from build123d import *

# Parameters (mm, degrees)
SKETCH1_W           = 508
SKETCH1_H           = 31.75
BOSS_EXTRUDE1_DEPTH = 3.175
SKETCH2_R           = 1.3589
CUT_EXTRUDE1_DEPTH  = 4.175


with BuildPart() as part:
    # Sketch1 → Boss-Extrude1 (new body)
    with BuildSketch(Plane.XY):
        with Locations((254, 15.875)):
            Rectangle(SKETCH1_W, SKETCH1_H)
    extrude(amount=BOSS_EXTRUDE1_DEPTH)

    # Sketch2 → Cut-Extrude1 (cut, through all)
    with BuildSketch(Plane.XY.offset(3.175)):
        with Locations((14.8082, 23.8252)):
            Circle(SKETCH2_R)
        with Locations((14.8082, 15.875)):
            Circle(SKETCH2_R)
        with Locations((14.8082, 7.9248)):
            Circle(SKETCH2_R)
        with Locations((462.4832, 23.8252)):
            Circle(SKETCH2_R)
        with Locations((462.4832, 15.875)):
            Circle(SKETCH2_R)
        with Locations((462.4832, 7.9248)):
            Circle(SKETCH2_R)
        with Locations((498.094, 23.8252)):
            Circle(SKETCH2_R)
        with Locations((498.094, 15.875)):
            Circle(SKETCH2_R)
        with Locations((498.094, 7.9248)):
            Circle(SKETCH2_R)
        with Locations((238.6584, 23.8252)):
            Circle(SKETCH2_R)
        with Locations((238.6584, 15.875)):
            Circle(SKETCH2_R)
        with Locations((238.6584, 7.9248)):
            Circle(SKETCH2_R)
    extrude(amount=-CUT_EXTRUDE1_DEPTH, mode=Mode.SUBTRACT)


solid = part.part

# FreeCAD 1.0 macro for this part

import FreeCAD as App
import Part
import Sketcher
Q = App.Units.Quantity

doc = App.newDocument("Part")
body = doc.addObject("PartDesign::Body", "Body")

# Sketch on XY plane
sketch1 = body.newObject("Sketcher::SketchObject", "Sketch")
sketch1.AttachmentSupport = (doc.getObject("XY_Plane"), [""])
sketch1.MapMode = "FlatFace"
sketch1.addGeometry(Part.LineSegment(App.Vector(0, 32, 0), App.Vector(0, 0, 0)), False)
sketch1.addGeometry(Part.LineSegment(App.Vector(0, 0, 0), App.Vector(508, 0, 0)), False)
sketch1.addGeometry(Part.LineSegment(App.Vector(508, 0, 0), App.Vector(508, 32, 0)), False)
sketch1.addGeometry(Part.LineSegment(App.Vector(508, 32, 0), App.Vector(0, 32, 0)), False)
sketch1.addConstraint(Sketcher.Constraint("Coincident", 0, 2, 1, 1))
sketch1.addConstraint(Sketcher.Constraint("Coincident", 1, 2, 2, 1))
sketch1.addConstraint(Sketcher.Constraint("Coincident", 2, 2, 3, 1))
sketch1.addConstraint(Sketcher.Constraint("Coincident", 3, 2, 0, 1))
sketch1.addConstraint(Sketcher.Constraint("Vertical", 0))
sketch1.addConstraint(Sketcher.Constraint("Horizontal", 1))
sketch1.addConstraint(Sketcher.Constraint("Vertical", 2))
sketch1.addConstraint(Sketcher.Constraint("Horizontal", 3))
sketch1.addConstraint(Sketcher.Constraint("Coincident", 0, 2, -1, 1))
sketch1.addConstraint(Sketcher.Constraint("DistanceX", 1, 1, 1, 2, Q("20 in")))
sketch1.addConstraint(Sketcher.Constraint("DistanceY", 0, 2, 0, 1, Q("1.25 in")))
pad1 = body.newObject("PartDesign::Pad", "Pad")
pad1.Profile = sketch1
pad1.Length = Q("0.125 in")

# Sketch on XY plane
sketch2 = body.newObject("Sketcher::SketchObject", "Sketch001")
sketch2.AttachmentSupport = (doc.getObject("XY_Plane"), [""])
sketch2.MapMode = "FlatFace"
sketch2.AttachmentOffset = App.Placement(App.Vector(0, 0, 0.125 * 25.4), App.Rotation())
sketch2.addGeometry(Part.Circle(App.Vector(14.8, 23.8, 0), App.Vector(0, 0, 1), 1.4), False)
sketch2.addGeometry(Part.Circle(App.Vector(14.8, 15.9, 0), App.Vector(0, 0, 1), 1.4), False)
sketch2.addGeometry(Part.Circle(App.Vector(14.8, 7.9, 0), App.Vector(0, 0, 1), 1.4), False)
sketch2.addGeometry(Part.Circle(App.Vector(462.5, 23.8, 0), App.Vector(0, 0, 1), 1.4), False)
sketch2.addGeometry(Part.Circle(App.Vector(462.5, 15.9, 0), App.Vector(0, 0, 1), 1.4), False)
sketch2.addGeometry(Part.Circle(App.Vector(462.5, 7.9, 0), App.Vector(0, 0, 1), 1.4), False)
sketch2.addGeometry(Part.Circle(App.Vector(498.1, 23.8, 0), App.Vector(0, 0, 1), 1.4), False)
sketch2.addGeometry(Part.Circle(App.Vector(498.1, 15.9, 0), App.Vector(0, 0, 1), 1.4), False)
sketch2.addGeometry(Part.Circle(App.Vector(498.1, 7.9, 0), App.Vector(0, 0, 1), 1.4), False)
sketch2.addGeometry(Part.Circle(App.Vector(238.7, 23.8, 0), App.Vector(0, 0, 1), 1.4), False)
sketch2.addGeometry(Part.Circle(App.Vector(238.7, 15.9, 0), App.Vector(0, 0, 1), 1.4), False)
sketch2.addGeometry(Part.Circle(App.Vector(238.7, 7.9, 0), App.Vector(0, 0, 1), 1.4), False)
sketch2.addConstraint(Sketcher.Constraint("Equal", 0, 1))
sketch2.addConstraint(Sketcher.Constraint("Equal", 1, 2))
sketch2.addConstraint(Sketcher.Constraint("Equal", 2, 3))
sketch2.addConstraint(Sketcher.Constraint("Equal", 3, 4))
sketch2.addConstraint(Sketcher.Constraint("Equal", 4, 5))
sketch2.addConstraint(Sketcher.Constraint("Equal", 5, 6))
sketch2.addConstraint(Sketcher.Constraint("Equal", 6, 7))
sketch2.addConstraint(Sketcher.Constraint("Equal", 7, 8))
sketch2.addConstraint(Sketcher.Constraint("Equal", 8, 9))
sketch2.addConstraint(Sketcher.Constraint("Equal", 9, 10))
sketch2.addConstraint(Sketcher.Constraint("Equal", 10, 11))
sketch2.addConstraint(Sketcher.Constraint("Horizontal", 0, 3, 3, 3))
sketch2.addConstraint(Sketcher.Constraint("Horizontal", 1, 3, 4, 3))
sketch2.addConstraint(Sketcher.Constraint("Horizontal", 2, 3, 5, 3))
sketch2.addConstraint(Sketcher.Constraint("Horizontal", 3, 3, 6, 3))
sketch2.addConstraint(Sketcher.Constraint("Horizontal", 4, 3, 7, 3))
sketch2.addConstraint(Sketcher.Constraint("Horizontal", 5, 3, 8, 3))
sketch2.addConstraint(Sketcher.Constraint("Horizontal", 6, 3, 9, 3))
sketch2.addConstraint(Sketcher.Constraint("Horizontal", 7, 3, 10, 3))
sketch2.addConstraint(Sketcher.Constraint("Horizontal", 8, 3, 11, 3))
sketch2.addConstraint(Sketcher.Constraint("Vertical", 0, 3, 1, 3))
sketch2.addConstraint(Sketcher.Constraint("Vertical", 1, 3, 2, 3))
sketch2.addConstraint(Sketcher.Constraint("Vertical", 3, 3, 4, 3))
sketch2.addConstraint(Sketcher.Constraint("Vertical", 4, 3, 5, 3))
sketch2.addConstraint(Sketcher.Constraint("Vertical", 6, 3, 7, 3))
sketch2.addConstraint(Sketcher.Constraint("Vertical", 7, 3, 8, 3))
sketch2.addConstraint(Sketcher.Constraint("Vertical", 9, 3, 10, 3))
sketch2.addConstraint(Sketcher.Constraint("Vertical", 10, 3, 11, 3))
sketch2.addConstraint(Sketcher.Constraint("Diameter", 0, Q("0.107 in")))
sketch2.addConstraint(Sketcher.Constraint("DistanceX", -1, 1, 6, 3, Q("19.61 in")))
sketch2.addConstraint(Sketcher.Constraint("DistanceX", -1, 1, 0, 3, Q("0.583 in")))
sketch2.addConstraint(Sketcher.Constraint("DistanceY", -1, 1, 0, 3, Q("0.938 in")))
sketch2.addConstraint(Sketcher.Constraint("DistanceY", -1, 1, 1, 3, Q("0.625 in")))
sketch2.addConstraint(Sketcher.Constraint("DistanceY", -1, 1, 2, 3, Q("0.312 in")))
sketch2.addConstraint(Sketcher.Constraint("DistanceX", -1, 1, 3, 3, Q("18.208 in")))
sketch2.addConstraint(Sketcher.Constraint("DistanceX", -1, 1, 9, 3, Q("9.396 in")))
pocket1 = body.newObject("PartDesign::Pocket", "Pocket")
pocket1.Profile = sketch2
pocket1.Type = "ThroughAll"

doc.recompute()
